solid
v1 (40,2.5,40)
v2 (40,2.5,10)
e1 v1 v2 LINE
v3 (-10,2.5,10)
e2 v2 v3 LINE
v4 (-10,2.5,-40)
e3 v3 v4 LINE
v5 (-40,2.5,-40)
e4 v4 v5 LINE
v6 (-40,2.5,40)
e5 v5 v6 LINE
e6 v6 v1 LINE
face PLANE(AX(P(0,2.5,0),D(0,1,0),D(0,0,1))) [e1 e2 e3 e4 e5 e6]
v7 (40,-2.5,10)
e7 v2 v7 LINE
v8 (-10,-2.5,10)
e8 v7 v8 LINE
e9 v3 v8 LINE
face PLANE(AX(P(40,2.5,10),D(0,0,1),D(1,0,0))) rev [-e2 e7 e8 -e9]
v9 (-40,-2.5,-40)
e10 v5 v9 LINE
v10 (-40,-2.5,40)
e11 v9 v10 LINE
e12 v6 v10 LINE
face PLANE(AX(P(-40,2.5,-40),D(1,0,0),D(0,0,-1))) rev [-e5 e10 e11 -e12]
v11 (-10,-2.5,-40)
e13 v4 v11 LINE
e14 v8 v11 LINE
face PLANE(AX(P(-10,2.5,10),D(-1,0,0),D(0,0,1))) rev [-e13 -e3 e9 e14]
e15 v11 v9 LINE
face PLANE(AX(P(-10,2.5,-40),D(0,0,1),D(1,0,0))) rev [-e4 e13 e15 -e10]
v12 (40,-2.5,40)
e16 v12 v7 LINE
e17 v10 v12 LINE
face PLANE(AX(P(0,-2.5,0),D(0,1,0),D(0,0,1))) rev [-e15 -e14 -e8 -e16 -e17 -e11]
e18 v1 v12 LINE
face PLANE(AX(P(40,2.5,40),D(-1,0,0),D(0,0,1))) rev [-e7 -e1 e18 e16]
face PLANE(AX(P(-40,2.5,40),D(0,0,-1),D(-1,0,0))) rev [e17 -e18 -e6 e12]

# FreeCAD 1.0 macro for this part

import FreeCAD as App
import Part
import Sketcher

V = App.Vector
Q = App.Units.Quantity


def add_polygon(sketch, points):
    """Adds a closed chain of lines whose ends are joined by coincident constraints."""
    first, n = sketch.GeometryCount, len(points)
    for a, b in zip(points, points[1:] + points[:1]):
        sketch.addGeometry(Part.LineSegment(App.Vector(*a, 0), App.Vector(*b, 0)), False)
    for i in range(n):
        sketch.addConstraint(Sketcher.Constraint("Coincident", first + i, 2, first + (i + 1) % n, 1))

doc = App.newDocument("Part")
body = doc.addObject("PartDesign::Body", "Body")

# Sketch on XZ plane
sketch1 = doc.addObject("Sketcher::SketchObject", "Sketch")
body.addObject(sketch1)
sketch1.AttachmentSupport = (doc.XZ_Plane, [""])
sketch1.MapMode = "FlatFace"
add_polygon(sketch1, [(-40, -40), (-40, 40), (40, 40), (40, 10), (-10, 10), (-10, -40)])  # lines 0-5
sketch1.addConstraint(Sketcher.Constraint("Vertical", 0))
sketch1.addConstraint(Sketcher.Constraint("Horizontal", 1))
sketch1.addConstraint(Sketcher.Constraint("Vertical", 2))
sketch1.addConstraint(Sketcher.Constraint("Horizontal", 3))
sketch1.addConstraint(Sketcher.Constraint("Vertical", 4))
sketch1.addConstraint(Sketcher.Constraint("Horizontal", 5))
sketch1.addConstraint(Sketcher.Constraint("Symmetric", 1, 2, 5, 2, -1, 1))
sketch1.addConstraint(Sketcher.Constraint("Equal", 1, 0))
sketch1.addConstraint(Sketcher.Constraint("Equal", 5, 2))
sketch1.addConstraint(Sketcher.Constraint("DistanceX", 1, 1, 1, 2, Q("80 mm")))
sketch1.addConstraint(Sketcher.Constraint("DistanceX", 3, 2, 3, 1, Q("50 mm")))
pad1 = doc.addObject("PartDesign::Pad", "Pad")
body.addObject(pad1)
pad1.Profile = sketch1
pad1.Length = 5
pad1.Midplane = True

doc.recompute()
